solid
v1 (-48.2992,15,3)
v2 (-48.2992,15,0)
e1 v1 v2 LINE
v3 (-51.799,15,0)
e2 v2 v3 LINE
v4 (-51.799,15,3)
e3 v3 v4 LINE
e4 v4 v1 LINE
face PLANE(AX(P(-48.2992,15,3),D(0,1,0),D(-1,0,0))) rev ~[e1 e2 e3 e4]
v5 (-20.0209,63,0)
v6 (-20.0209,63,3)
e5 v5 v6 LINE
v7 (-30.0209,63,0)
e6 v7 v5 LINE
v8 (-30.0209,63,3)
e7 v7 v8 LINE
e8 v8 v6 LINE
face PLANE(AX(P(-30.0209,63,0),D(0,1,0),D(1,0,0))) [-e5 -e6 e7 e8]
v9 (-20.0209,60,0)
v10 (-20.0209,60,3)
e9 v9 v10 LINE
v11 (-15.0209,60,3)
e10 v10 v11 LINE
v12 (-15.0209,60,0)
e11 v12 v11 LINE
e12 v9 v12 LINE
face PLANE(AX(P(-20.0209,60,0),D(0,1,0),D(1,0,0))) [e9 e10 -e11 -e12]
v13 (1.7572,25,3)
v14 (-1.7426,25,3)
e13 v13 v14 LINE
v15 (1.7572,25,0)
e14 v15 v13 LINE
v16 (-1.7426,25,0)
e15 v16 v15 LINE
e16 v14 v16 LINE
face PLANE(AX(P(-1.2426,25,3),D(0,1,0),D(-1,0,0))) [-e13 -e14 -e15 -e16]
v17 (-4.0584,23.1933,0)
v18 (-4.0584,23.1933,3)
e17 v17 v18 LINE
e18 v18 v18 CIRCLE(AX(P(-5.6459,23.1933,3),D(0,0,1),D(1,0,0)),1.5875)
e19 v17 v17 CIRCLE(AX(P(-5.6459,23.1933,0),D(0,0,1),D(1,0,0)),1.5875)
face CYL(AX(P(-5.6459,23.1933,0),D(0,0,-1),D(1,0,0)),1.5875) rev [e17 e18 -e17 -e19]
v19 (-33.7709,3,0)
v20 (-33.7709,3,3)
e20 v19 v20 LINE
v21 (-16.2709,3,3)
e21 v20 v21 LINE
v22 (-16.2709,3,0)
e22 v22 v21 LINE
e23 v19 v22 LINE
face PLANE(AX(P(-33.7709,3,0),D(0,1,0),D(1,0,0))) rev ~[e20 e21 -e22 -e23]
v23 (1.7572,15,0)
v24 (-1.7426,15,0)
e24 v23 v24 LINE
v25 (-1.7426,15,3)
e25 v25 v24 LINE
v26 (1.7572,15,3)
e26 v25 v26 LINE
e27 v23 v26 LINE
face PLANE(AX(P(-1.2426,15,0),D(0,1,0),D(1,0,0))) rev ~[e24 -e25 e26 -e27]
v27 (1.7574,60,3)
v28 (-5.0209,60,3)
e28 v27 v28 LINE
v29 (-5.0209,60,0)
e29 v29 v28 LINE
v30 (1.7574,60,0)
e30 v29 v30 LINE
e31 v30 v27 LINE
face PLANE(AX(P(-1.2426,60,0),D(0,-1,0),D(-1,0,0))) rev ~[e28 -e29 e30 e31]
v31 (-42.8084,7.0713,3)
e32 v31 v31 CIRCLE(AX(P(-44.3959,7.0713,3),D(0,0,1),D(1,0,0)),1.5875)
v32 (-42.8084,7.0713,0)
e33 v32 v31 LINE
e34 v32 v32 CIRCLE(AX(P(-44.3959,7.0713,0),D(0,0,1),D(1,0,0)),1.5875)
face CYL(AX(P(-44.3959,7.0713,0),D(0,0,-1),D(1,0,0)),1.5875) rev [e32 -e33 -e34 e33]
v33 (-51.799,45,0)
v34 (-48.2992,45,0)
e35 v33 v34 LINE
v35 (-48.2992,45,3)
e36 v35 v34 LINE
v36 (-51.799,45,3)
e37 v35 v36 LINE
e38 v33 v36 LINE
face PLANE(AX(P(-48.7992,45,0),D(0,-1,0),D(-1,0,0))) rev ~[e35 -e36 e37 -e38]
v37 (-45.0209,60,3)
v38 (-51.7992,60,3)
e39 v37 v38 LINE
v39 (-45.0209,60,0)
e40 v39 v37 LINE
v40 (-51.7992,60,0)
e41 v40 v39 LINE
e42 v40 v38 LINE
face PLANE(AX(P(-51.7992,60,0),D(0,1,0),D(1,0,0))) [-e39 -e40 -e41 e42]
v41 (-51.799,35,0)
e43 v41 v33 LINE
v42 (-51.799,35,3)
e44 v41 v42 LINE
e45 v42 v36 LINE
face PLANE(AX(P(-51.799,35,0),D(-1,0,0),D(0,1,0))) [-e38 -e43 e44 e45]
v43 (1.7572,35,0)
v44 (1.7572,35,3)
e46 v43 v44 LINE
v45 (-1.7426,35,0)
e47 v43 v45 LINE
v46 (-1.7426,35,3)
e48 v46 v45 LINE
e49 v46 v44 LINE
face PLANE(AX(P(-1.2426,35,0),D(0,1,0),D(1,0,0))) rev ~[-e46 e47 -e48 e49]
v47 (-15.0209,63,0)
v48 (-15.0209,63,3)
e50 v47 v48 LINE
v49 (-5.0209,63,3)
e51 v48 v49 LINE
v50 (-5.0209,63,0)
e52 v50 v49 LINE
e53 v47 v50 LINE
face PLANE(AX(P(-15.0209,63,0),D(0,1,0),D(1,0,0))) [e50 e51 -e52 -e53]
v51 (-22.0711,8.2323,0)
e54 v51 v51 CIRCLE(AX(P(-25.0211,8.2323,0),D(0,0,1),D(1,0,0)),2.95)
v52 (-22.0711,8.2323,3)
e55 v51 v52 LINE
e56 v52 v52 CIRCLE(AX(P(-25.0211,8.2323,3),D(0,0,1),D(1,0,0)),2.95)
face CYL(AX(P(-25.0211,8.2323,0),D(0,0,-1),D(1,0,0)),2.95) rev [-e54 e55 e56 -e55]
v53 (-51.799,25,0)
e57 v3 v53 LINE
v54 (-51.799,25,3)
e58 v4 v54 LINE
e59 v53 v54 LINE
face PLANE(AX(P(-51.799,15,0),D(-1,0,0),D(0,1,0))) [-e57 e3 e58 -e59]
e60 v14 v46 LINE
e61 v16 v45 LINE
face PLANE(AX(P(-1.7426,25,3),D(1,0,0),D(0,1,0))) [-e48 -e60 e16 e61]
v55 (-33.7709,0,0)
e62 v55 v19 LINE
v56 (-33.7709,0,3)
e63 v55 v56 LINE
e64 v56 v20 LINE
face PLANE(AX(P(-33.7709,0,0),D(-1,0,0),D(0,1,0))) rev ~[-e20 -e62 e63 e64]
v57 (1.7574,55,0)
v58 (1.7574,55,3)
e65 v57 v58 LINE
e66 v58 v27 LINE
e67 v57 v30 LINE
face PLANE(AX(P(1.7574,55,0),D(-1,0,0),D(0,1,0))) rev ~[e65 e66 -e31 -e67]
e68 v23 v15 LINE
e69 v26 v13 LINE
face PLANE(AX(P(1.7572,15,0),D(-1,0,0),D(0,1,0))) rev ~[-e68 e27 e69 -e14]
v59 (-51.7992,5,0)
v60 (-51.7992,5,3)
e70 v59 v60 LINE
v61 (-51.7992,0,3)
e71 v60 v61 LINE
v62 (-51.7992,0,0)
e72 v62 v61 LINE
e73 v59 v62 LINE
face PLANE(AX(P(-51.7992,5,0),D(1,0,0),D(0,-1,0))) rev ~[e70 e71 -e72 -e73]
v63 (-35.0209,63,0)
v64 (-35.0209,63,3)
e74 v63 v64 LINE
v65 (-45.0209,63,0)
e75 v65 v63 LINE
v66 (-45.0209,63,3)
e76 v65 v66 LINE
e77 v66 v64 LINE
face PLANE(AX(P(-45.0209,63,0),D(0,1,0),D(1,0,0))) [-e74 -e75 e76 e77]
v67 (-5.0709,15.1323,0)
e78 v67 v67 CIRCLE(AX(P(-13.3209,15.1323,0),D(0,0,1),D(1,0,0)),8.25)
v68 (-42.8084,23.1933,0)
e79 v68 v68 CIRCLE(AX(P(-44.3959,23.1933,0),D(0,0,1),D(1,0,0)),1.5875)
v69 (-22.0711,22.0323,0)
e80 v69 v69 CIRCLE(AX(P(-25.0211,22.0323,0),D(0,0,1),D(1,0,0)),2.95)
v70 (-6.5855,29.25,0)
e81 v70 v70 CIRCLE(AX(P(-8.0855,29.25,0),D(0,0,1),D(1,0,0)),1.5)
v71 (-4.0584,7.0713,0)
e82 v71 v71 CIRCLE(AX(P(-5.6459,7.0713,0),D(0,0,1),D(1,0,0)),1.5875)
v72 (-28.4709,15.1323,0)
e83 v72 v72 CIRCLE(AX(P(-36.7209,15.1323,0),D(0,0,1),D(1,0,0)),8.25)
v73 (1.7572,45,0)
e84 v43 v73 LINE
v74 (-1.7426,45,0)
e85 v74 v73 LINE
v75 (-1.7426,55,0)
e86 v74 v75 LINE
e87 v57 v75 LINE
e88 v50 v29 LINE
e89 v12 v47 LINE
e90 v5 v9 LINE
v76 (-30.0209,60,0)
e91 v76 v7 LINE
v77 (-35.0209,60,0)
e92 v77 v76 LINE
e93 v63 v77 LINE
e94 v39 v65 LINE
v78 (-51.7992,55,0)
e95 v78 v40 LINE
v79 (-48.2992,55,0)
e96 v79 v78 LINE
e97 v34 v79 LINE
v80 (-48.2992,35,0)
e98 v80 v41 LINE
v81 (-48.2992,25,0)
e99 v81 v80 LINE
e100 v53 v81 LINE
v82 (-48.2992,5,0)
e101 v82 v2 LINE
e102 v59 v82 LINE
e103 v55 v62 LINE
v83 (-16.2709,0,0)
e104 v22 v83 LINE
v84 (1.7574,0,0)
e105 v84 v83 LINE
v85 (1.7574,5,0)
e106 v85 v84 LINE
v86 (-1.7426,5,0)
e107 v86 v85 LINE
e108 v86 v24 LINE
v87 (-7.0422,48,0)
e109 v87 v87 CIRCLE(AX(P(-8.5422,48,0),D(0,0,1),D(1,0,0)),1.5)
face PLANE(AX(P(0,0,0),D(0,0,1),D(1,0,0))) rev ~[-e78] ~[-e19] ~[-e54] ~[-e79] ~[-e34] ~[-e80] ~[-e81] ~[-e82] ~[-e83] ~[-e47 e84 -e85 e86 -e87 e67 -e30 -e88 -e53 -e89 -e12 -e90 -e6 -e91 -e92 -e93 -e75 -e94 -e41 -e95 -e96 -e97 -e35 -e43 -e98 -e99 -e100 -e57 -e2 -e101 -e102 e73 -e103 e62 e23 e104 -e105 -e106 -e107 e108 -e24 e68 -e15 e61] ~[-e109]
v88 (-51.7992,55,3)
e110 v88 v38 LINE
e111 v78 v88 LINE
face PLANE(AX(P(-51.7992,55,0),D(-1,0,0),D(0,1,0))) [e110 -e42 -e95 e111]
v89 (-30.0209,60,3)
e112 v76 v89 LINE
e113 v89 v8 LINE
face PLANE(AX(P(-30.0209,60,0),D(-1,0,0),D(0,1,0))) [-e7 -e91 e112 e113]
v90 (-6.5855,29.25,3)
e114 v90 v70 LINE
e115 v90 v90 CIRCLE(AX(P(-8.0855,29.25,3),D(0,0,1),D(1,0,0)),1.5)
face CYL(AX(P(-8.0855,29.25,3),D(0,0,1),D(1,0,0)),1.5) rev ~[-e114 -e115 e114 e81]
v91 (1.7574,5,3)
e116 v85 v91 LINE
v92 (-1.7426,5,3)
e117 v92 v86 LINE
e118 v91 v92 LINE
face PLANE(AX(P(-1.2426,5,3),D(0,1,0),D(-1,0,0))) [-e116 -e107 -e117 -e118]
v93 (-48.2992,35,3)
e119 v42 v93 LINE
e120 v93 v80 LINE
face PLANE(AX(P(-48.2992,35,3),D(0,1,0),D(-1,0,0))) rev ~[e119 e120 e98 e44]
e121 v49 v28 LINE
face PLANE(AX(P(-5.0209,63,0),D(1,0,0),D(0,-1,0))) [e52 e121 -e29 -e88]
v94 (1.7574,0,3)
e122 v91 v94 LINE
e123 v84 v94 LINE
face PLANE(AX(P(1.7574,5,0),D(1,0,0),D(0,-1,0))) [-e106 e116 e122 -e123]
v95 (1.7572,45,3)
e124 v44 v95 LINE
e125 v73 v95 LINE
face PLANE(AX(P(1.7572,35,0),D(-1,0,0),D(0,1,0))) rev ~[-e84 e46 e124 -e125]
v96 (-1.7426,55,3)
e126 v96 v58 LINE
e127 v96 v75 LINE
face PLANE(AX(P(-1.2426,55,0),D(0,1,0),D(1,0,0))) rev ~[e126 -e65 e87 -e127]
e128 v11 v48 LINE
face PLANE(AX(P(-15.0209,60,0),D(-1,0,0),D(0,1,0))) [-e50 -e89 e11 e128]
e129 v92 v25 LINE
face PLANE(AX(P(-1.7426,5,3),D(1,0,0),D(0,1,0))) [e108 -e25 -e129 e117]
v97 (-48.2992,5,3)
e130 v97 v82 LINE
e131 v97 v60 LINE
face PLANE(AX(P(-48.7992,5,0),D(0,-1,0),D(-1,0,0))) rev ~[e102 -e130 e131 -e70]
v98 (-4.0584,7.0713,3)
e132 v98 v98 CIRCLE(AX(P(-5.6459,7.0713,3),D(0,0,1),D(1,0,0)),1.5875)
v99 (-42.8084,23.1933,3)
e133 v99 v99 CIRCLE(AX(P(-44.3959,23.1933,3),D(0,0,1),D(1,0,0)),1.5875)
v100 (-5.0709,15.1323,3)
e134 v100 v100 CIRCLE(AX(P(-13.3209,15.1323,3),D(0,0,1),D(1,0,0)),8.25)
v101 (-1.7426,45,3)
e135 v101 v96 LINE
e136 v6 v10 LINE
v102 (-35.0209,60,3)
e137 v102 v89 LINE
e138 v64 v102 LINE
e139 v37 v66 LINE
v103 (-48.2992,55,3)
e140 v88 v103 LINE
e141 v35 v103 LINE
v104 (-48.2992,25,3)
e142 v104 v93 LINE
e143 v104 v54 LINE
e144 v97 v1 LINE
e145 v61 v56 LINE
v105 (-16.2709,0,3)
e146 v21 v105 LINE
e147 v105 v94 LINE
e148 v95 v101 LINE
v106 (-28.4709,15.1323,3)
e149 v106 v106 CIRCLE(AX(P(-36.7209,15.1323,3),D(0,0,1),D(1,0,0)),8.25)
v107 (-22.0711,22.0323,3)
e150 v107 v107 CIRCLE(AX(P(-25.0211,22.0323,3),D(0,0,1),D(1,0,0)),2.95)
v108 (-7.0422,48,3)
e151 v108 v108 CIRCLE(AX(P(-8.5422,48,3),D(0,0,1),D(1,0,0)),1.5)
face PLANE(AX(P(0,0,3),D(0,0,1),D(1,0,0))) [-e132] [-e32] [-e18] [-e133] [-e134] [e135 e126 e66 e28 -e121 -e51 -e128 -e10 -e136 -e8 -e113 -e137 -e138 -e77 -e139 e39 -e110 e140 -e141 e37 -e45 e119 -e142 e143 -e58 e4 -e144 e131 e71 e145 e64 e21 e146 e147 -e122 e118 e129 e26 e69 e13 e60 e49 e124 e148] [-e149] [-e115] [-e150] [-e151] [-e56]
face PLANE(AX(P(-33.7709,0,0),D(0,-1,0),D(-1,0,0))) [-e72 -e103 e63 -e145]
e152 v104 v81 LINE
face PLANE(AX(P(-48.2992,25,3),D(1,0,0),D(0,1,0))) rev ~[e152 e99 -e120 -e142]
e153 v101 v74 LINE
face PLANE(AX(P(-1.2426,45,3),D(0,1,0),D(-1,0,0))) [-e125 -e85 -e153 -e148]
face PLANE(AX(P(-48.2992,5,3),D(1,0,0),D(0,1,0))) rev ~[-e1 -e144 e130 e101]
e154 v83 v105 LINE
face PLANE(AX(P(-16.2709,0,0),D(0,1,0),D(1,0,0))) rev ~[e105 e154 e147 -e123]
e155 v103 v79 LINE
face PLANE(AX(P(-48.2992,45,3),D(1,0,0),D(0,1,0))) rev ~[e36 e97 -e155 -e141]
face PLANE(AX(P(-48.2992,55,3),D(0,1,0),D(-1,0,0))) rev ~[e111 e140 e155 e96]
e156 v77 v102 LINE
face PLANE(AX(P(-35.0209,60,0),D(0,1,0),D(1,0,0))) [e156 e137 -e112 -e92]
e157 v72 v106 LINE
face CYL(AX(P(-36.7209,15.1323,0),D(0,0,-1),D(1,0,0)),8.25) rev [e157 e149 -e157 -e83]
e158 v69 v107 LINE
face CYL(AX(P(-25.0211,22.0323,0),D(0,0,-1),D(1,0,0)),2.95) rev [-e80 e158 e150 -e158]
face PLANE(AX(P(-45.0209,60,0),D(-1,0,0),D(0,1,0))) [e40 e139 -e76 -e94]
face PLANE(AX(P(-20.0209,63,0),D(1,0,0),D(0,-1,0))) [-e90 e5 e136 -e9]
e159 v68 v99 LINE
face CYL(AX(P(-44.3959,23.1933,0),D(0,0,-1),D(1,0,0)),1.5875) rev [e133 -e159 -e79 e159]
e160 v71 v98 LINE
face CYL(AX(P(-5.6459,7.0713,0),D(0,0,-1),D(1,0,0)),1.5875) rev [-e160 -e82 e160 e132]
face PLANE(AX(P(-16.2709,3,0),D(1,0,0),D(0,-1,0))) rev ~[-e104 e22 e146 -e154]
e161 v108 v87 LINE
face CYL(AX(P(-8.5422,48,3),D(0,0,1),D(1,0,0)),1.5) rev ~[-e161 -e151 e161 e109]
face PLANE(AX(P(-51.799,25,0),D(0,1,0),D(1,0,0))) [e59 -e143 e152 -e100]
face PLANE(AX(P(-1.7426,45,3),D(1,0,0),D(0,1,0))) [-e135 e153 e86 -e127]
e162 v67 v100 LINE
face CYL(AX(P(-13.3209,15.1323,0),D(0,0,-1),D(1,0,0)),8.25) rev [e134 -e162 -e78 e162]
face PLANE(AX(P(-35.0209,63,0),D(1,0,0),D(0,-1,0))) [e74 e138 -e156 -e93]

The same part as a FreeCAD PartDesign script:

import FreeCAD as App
import Part
import Sketcher

V = App.Vector
Q = App.Units.Quantity

doc = App.newDocument("Part")
body = doc.addObject("PartDesign::Body", "Body")

# Sketch on XY plane
sketch1 = body.newObject("Sketcher::SketchObject", "Sketch")
sketch1.AttachmentSupport = (doc.getObject("XY_Plane"), [""])
sketch1.MapMode = "FlatFace"
sketch1.addGeometry([
    Part.LineSegment(V(-33.8, 3, 0), V(-16.3, 3, 0)),  # 0
    Part.LineSegment(V(-16.3, 3, 0), V(-16.3, 0, 0)),  # 1
    Part.LineSegment(V(-16.3, 0, 0), V(1.8, 0, 0)),  # 2
    Part.LineSegment(V(1.8, 0, 0), V(1.8, 5, 0)),  # 3
    Part.LineSegment(V(1.8, 5, 0), V(-1.2, 5, 0)),  # 4
    Part.LineSegment(V(-1.2, 5, 0), V(-1.2, 15, 0)),  # 5
    Part.LineSegment(V(-1.2, 15, 0), V(1.8, 15, 0)),  # 6
    Part.LineSegment(V(1.8, 15, 0), V(1.8, 25, 0)),  # 7
    Part.LineSegment(V(1.8, 25, 0), V(-1.2, 25, 0)),  # 8
    Part.LineSegment(V(-1.2, 25, 0), V(-1.2, 35, 0)),  # 9
    Part.LineSegment(V(-1.2, 35, 0), V(1.8, 35, 0)),  # 10
    Part.LineSegment(V(1.8, 35, 0), V(1.8, 45, 0)),  # 11
    Part.LineSegment(V(1.8, 45, 0), V(-1.2, 45, 0)),  # 12
    Part.LineSegment(V(-1.2, 45, 0), V(-1.2, 55, 0)),  # 13
    Part.LineSegment(V(-1.2, 55, 0), V(1.8, 55, 0)),  # 14
    Part.LineSegment(V(1.8, 55, 0), V(1.8, 60, 0)),  # 15
    Part.LineSegment(V(1.8, 60, 0), V(-5, 60, 0)),  # 16
    Part.LineSegment(V(-5, 60, 0), V(-5, 63, 0)),  # 17
    Part.LineSegment(V(-5, 63, 0), V(-15, 63, 0)),  # 18
    Part.LineSegment(V(-15, 63, 0), V(-15, 60, 0)),  # 19
    Part.LineSegment(V(-15, 60, 0), V(-20, 60, 0)),  # 20
    Part.LineSegment(V(-20, 60, 0), V(-20, 63, 0)),  # 21
    Part.LineSegment(V(-20, 63, 0), V(-30, 63, 0)),  # 22
    Part.LineSegment(V(-30, 63, 0), V(-30, 60, 0)),  # 23
    Part.LineSegment(V(-30, 60, 0), V(-35, 60, 0)),  # 24
    Part.LineSegment(V(-35, 60, 0), V(-35, 63, 0)),  # 25
    Part.LineSegment(V(-35, 63, 0), V(-45, 63, 0)),  # 26
    Part.LineSegment(V(-45, 63, 0), V(-45, 60, 0)),  # 27
    Part.LineSegment(V(-45, 60, 0), V(-51.8, 60, 0)),  # 28
    Part.LineSegment(V(-51.8, 60, 0), V(-51.8, 55, 0)),  # 29
    Part.LineSegment(V(-51.8, 55, 0), V(-48.8, 55, 0)),  # 30
    Part.LineSegment(V(-48.8, 55, 0), V(-48.8, 45, 0)),  # 31
    Part.LineSegment(V(-48.8, 45, 0), V(-51.8, 45, 0)),  # 32
    Part.LineSegment(V(-51.8, 45, 0), V(-51.8, 35, 0)),  # 33
    Part.LineSegment(V(-51.8, 35, 0), V(-48.8, 35, 0)),  # 34
    Part.LineSegment(V(-48.8, 35, 0), V(-48.8, 25, 0)),  # 35
    Part.LineSegment(V(-48.8, 25, 0), V(-51.8, 25, 0)),  # 36
    Part.LineSegment(V(-51.8, 25, 0), V(-51.8, 15, 0)),  # 37
    Part.LineSegment(V(-51.8, 15, 0), V(-48.8, 15, 0)),  # 38
    Part.LineSegment(V(-48.8, 15, 0), V(-48.8, 5, 0)),  # 39
    Part.LineSegment(V(-48.8, 5, 0), V(-51.8, 5, 0)),  # 40
    Part.LineSegment(V(-51.8, 5, 0), V(-51.8, 0, 0)),  # 41
    Part.LineSegment(V(-51.8, 0, 0), V(-33.8, 0, 0)),  # 42
    Part.LineSegment(V(-33.8, 0, 0), V(-33.8, 3, 0)),  # 43
    Part.Circle(V(-44.4, 7.1, 0), V(0, 0, 1), 1.6),  # 44
    Part.Circle(V(-36.7, 15.1, 0), V(0, 0, 1), 8.2),  # 45
    Part.Circle(V(-25, 8.2, 0), V(0, 0, 1), 3),  # 46
    Part.Circle(V(-44.4, 23.2, 0), V(0, 0, 1), 1.6),  # 47
    Part.Circle(V(-42, 29.2, 0), V(0, 0, 1), 1.5),  # 48
    Part.Circle(V(-25, 22, 0), V(0, 0, 1), 3),  # 49
    Part.Circle(V(-13.3, 15.1, 0), V(0, 0, 1), 8.2),  # 50
    Part.Circle(V(-5.6, 7.1, 0), V(0, 0, 1), 1.6),  # 51
    Part.Circle(V(-5.6, 23.2, 0), V(0, 0, 1), 1.6),  # 52
    Part.Circle(V(-41.5, 48, 0), V(0, 0, 1), 1.5),  # 53
], False)
sketch1.addConstraint([
    Sketcher.Constraint("Coincident", 0, 2, 1, 1),
    Sketcher.Constraint("Coincident", 1, 2, 2, 1),
    Sketcher.Constraint("Coincident", 2, 2, 3, 1),
    Sketcher.Constraint("Coincident", 3, 2, 4, 1),
    Sketcher.Constraint("Coincident", 4, 2, 5, 1),
    Sketcher.Constraint("Coincident", 5, 2, 6, 1),
    Sketcher.Constraint("Coincident", 6, 2, 7, 1),
    Sketcher.Constraint("Coincident", 7, 2, 8, 1),
    Sketcher.Constraint("Coincident", 8, 2, 9, 1),
    Sketcher.Constraint("Coincident", 9, 2, 10, 1),
    Sketcher.Constraint("Coincident", 10, 2, 11, 1),
    Sketcher.Constraint("Coincident", 11, 2, 12, 1),
    Sketcher.Constraint("Coincident", 12, 2, 13, 1),
    Sketcher.Constraint("Coincident", 13, 2, 14, 1),
    Sketcher.Constraint("Coincident", 14, 2, 15, 1),
    Sketcher.Constraint("Coincident", 15, 2, 16, 1),
    Sketcher.Constraint("Coincident", 16, 2, 17, 1),
    Sketcher.Constraint("Coincident", 17, 2, 18, 1),
    Sketcher.Constraint("Coincident", 18, 2, 19, 1),
    Sketcher.Constraint("Coincident", 19, 2, 20, 1),
    Sketcher.Constraint("Coincident", 20, 2, 21, 1),
    Sketcher.Constraint("Coincident", 21, 2, 22, 1),
    Sketcher.Constraint("Coincident", 22, 2, 23, 1),
    Sketcher.Constraint("Coincident", 23, 2, 24, 1),
    Sketcher.Constraint("Coincident", 24, 2, 25, 1),
    Sketcher.Constraint("Coincident", 25, 2, 26, 1),
    Sketcher.Constraint("Coincident", 26, 2, 27, 1),
    Sketcher.Constraint("Coincident", 27, 2, 28, 1),
    Sketcher.Constraint("Coincident", 28, 2, 29, 1),
    Sketcher.Constraint("Coincident", 29, 2, 30, 1),
    Sketcher.Constraint("Coincident", 30, 2, 31, 1),
    Sketcher.Constraint("Coincident", 31, 2, 32, 1),
    Sketcher.Constraint("Coincident", 32, 2, 33, 1),
    Sketcher.Constraint("Coincident", 33, 2, 34, 1),
    Sketcher.Constraint("Coincident", 34, 2, 35, 1),
    Sketcher.Constraint("Coincident", 35, 2, 36, 1),
    Sketcher.Constraint("Coincident", 36, 2, 37, 1),
    Sketcher.Constraint("Coincident", 37, 2, 38, 1),
    Sketcher.Constraint("Coincident", 38, 2, 39, 1),
    Sketcher.Constraint("Coincident", 39, 2, 40, 1),
    Sketcher.Constraint("Coincident", 40, 2, 41, 1),
    Sketcher.Constraint("Coincident", 41, 2, 42, 1),
    Sketcher.Constraint("Coincident", 42, 2, 43, 1),
    Sketcher.Constraint("Coincident", 43, 2, 0, 1),
    Sketcher.Constraint("Horizontal", 0),
    Sketcher.Constraint("Vertical", 1),
    Sketcher.Constraint("Horizontal", 2),
    Sketcher.Constraint("Vertical", 3),
    Sketcher.Constraint("Horizontal", 4),
    Sketcher.Constraint("Vertical", 5),
    Sketcher.Constraint("Horizontal", 6),
    Sketcher.Constraint("Vertical", 7),
    Sketcher.Constraint("Horizontal", 8),
    Sketcher.Constraint("Vertical", 9),
    Sketcher.Constraint("Horizontal", 10),
    Sketcher.Constraint("Vertical", 11),
    Sketcher.Constraint("Horizontal", 12),
    Sketcher.Constraint("Vertical", 13),
    Sketcher.Constraint("Horizontal", 14),
    Sketcher.Constraint("Vertical", 15),
    Sketcher.Constraint("Horizontal", 16),
    Sketcher.Constraint("Vertical", 17),
    Sketcher.Constraint("Horizontal", 18),
    Sketcher.Constraint("Vertical", 19),
    Sketcher.Constraint("Horizontal", 20),
    Sketcher.Constraint("Vertical", 21),
    Sketcher.Constraint("Horizontal", 22),
    Sketcher.Constraint("Vertical", 23),
    Sketcher.Constraint("Horizontal", 24),
    Sketcher.Constraint("Vertical", 25),
    Sketcher.Constraint("Horizontal", 26),
    Sketcher.Constraint("Vertical", 27),
    Sketcher.Constraint("Horizontal", 28),
    Sketcher.Constraint("Vertical", 29),
    Sketcher.Constraint("Horizontal", 30),
    Sketcher.Constraint("Vertical", 31),
    Sketcher.Constraint("Horizontal", 32),
    Sketcher.Constraint("Vertical", 33),
    Sketcher.Constraint("Horizontal", 34),
    Sketcher.Constraint("Vertical", 35),
    Sketcher.Constraint("Horizontal", 36),
    Sketcher.Constraint("Vertical", 37),
    Sketcher.Constraint("Horizontal", 38),
    Sketcher.Constraint("Vertical", 39),
    Sketcher.Constraint("Horizontal", 40),
    Sketcher.Constraint("Vertical", 41),
    Sketcher.Constraint("Horizontal", 42),
    Sketcher.Constraint("Vertical", 43),
    Sketcher.Constraint("Equal", 44, 47),
    Sketcher.Constraint("Equal", 46, 49),
    Sketcher.Constraint("Equal", 45, 50),
    Sketcher.Constraint("Equal", 47, 51),
    Sketcher.Constraint("Equal", 51, 52),
    Sketcher.Constraint("Equal", 48, 53),
    Sketcher.Constraint("PointOnObject", 1, 2, -1),
    Sketcher.Constraint("PointOnObject", 41, 2, -1),
    Sketcher.Constraint("Horizontal", 45, 3, 50, 3),
    Sketcher.Constraint("Horizontal", 44, 3, 51, 3),
    Sketcher.Constraint("Horizontal", 47, 3, 52, 3),
    Sketcher.Constraint("Horizontal", 16, 2, 19, 2),
    Sketcher.Constraint("Horizontal", 18, 2, 21, 2),
    Sketcher.Constraint("Horizontal", 20, 2, 23, 2),
    Sketcher.Constraint("Horizontal", 22, 2, 25, 2),
    Sketcher.Constraint("Horizontal", 24, 2, 27, 2),
    Sketcher.Constraint("Horizontal", 14, 2, 29, 2),
    Sketcher.Constraint("Horizontal", 12, 2, 31, 2),
    Sketcher.Constraint("Horizontal", 10, 2, 33, 2),
    Sketcher.Constraint("Horizontal", 8, 2, 35, 2),
    Sketcher.Constraint("Horizontal", 6, 2, 37, 2),
    Sketcher.Constraint("Horizontal", 4, 2, 39, 2),
    Sketcher.Constraint("Vertical", 44, 3, 47, 3),
    Sketcher.Constraint("Vertical", 46, 3, 49, 3),
    Sketcher.Constraint("Vertical", 51, 3, 52, 3),
    Sketcher.Constraint("Vertical", 3, 2, 6, 2),
    Sketcher.Constraint("Vertical", 5, 2, 8, 2),
    Sketcher.Constraint("Vertical", 7, 2, 10, 2),
    Sketcher.Constraint("Vertical", 9, 2, 12, 2),
    Sketcher.Constraint("Vertical", 11, 2, 14, 2),
    Sketcher.Constraint("Vertical", 29, 2, 32, 2),
    Sketcher.Constraint("Vertical", 31, 2, 34, 2),
    Sketcher.Constraint("Vertical", 33, 2, 36, 2),
    Sketcher.Constraint("Vertical", 35, 2, 38, 2),
    Sketcher.Constraint("Vertical", 37, 2, 40, 2),
    Sketcher.Constraint("Equal", 18, 22),
    Sketcher.Constraint("Equal", 20, 24),
    Sketcher.Constraint("Equal", 22, 26),
    Sketcher.Constraint("Equal", 16, 28),
    Sketcher.Constraint("Equal", 14, 30),
    Sketcher.Constraint("Equal", 2, 42),
    Sketcher.Constraint("Equal", 40, 1),
    Sketcher.Constraint("Equal", 24, 3),
    Sketcher.Constraint("Equal", 26, 5),
    Sketcher.Constraint("Equal", 5, 7),
    Sketcher.Constraint("Equal", 7, 9),
    Sketcher.Constraint("Equal", 9, 11),
    Sketcher.Constraint("Equal", 11, 13),
    Sketcher.Constraint("Equal", 3, 15),
    Sketcher.Constraint("Equal", 1, 17),
    Sketcher.Constraint("Diameter", 48, Q("3 mm")),
    Sketcher.Constraint("DistanceX", 4, 2, 4, 1, Q("3 mm")),
    Sketcher.Constraint("DistanceX", 18, 2, 18, 1, Q("10 mm")),
    Sketcher.Constraint("DistanceY", -1, 1, 5, 2, Q("15 mm")),
    Sketcher.Constraint("DistanceY", 53, 3, 22, 2, Q("15 mm")),
    Sketcher.Constraint("Diameter", 45, Q("16.5 mm")),
    Sketcher.Constraint("Diameter", 46, Q("5.9 mm")),
    Sketcher.Constraint("Diameter", 44, Q("3.175 mm")),
    Sketcher.Constraint("DistanceX", 0, 1, 0, 2, Q("17.5 mm")),
    Sketcher.Constraint("DistanceX", 44, 3, 45, 3, Q("7.675 mm")),
    Sketcher.Constraint("DistanceY", 44, 3, 45, 3, Q("8.061 mm")),
    Sketcher.Constraint("DistanceY", 45, 3, 47, 3, Q("8.061 mm")),
    Sketcher.Constraint("DistanceX", 50, 3, 51, 3, Q("7.675 mm")),
    Sketcher.Constraint("DistanceX", 53, 3, -1, 1, Q("41.5 mm")),
    Sketcher.Constraint("DistanceX", 45, 3, 46, 3, Q("11.6998 mm")),
    Sketcher.Constraint("DistanceY", 46, 3, 45, 3, Q("6.9 mm")),
    Sketcher.Constraint("DistanceY", 45, 3, 49, 3, Q("6.9 mm")),
    Sketcher.Constraint("DistanceX", 46, 3, 50, 3, Q("11.7002 mm")),
    Sketcher.Constraint("DistanceY", -1, 1, 48, 3, Q("29.25 mm")),
    Sketcher.Constraint("DistanceX", 0, 2, 50, 3, Q("2.95 mm")),
    Sketcher.Constraint("DistanceX", 2, 1, 2, 2, Q("18.0283 mm")),
    Sketcher.Constraint("DistanceX", 44, 3, -1, 1, Q("44.396 mm")),
    Sketcher.Constraint("DistanceY", -1, 1, 44, 3, Q("7.0713 mm")),
    Sketcher.Constraint("DistanceX", 48, 3, -1, 1, Q("41.9566 mm")),
])
pad1 = body.newObject("PartDesign::Pad", "Pad")
pad1.Profile = sketch1
pad1.Length = 3

# Sketch on XY plane
sketch2 = body.newObject("Sketcher::SketchObject", "Sketch001")
sketch2.AttachmentSupport = (doc.getObject("XY_Plane"), [""])
sketch2.MapMode = "FlatFace"
sketch2.AttachmentOffset = App.Placement(V(0, 0, 3), App.Rotation())
sketch2.addGeometry([
    Part.LineSegment(V(-1.7, 5, 0), V(-1.2, 5, 0)),  # 0
    Part.LineSegment(V(-1.2, 5, 0), V(-1.2, 15, 0)),  # 1
    Part.LineSegment(V(-1.2, 15, 0), V(-1.7, 15, 0)),  # 2
    Part.LineSegment(V(-1.7, 15, 0), V(-1.7, 5, 0)),  # 3
    Part.LineSegment(V(-1.7, 25, 0), V(-1.2, 25, 0)),  # 4
    Part.LineSegment(V(-1.2, 25, 0), V(-1.2, 35, 0)),  # 5
    Part.LineSegment(V(-1.2, 35, 0), V(-1.7, 35, 0)),  # 6
    Part.LineSegment(V(-1.7, 35, 0), V(-1.7, 25, 0)),  # 7
    Part.LineSegment(V(-1.7, 45, 0), V(-1.2, 45, 0)),  # 8
    Part.LineSegment(V(-1.2, 45, 0), V(-1.2, 55, 0)),  # 9
    Part.LineSegment(V(-1.2, 55, 0), V(-1.7, 55, 0)),  # 10
    Part.LineSegment(V(-1.7, 55, 0), V(-1.7, 45, 0)),  # 11
    Part.LineSegment(V(-48.3, 55, 0), V(-48.8, 55, 0)),  # 12
    Part.LineSegment(V(-48.8, 55, 0), V(-48.8, 45, 0)),  # 13
    Part.LineSegment(V(-48.8, 45, 0), V(-48.3, 45, 0)),  # 14
    Part.LineSegment(V(-48.3, 45, 0), V(-48.3, 55, 0)),  # 15
    Part.LineSegment(V(-48.3, 35, 0), V(-48.8, 35, 0)),  # 16
    Part.LineSegment(V(-48.8, 35, 0), V(-48.8, 25, 0)),  # 17
    Part.LineSegment(V(-48.8, 25, 0), V(-48.3, 25, 0)),  # 18
    Part.LineSegment(V(-48.3, 25, 0), V(-48.3, 35, 0)),  # 19
    Part.LineSegment(V(-48.3, 15, 0), V(-48.8, 15, 0)),  # 20
    Part.LineSegment(V(-48.8, 15, 0), V(-48.8, 5, 0)),  # 21
    Part.LineSegment(V(-48.8, 5, 0), V(-48.3, 5, 0)),  # 22
    Part.LineSegment(V(-48.3, 5, 0), V(-48.3, 15, 0)),  # 23
], False)
sketch2.addConstraint([
    Sketcher.Constraint("Coincident", 0, 2, 1, 1),
    Sketcher.Constraint("Coincident", 1, 2, 2, 1),
    Sketcher.Constraint("Coincident", 2, 2, 3, 1),
    Sketcher.Constraint("Coincident", 3, 2, 0, 1),
    Sketcher.Constraint("Coincident", 4, 2, 5, 1),
    Sketcher.Constraint("Coincident", 5, 2, 6, 1),
    Sketcher.Constraint("Coincident", 6, 2, 7, 1),
    Sketcher.Constraint("Coincident", 7, 2, 4, 1),
    Sketcher.Constraint("Coincident", 8, 2, 9, 1),
    Sketcher.Constraint("Coincident", 9, 2, 10, 1),
    Sketcher.Constraint("Coincident", 10, 2, 11, 1),
    Sketcher.Constraint("Coincident", 11, 2, 8, 1),
    Sketcher.Constraint("Coincident", 12, 2, 13, 1),
    Sketcher.Constraint("Coincident", 13, 2, 14, 1),
    Sketcher.Constraint("Coincident", 14, 2, 15, 1),
    Sketcher.Constraint("Coincident", 15, 2, 12, 1),
    Sketcher.Constraint("Coincident", 16, 2, 17, 1),
    Sketcher.Constraint("Coincident", 17, 2, 18, 1),
    Sketcher.Constraint("Coincident", 18, 2, 19, 1),
    Sketcher.Constraint("Coincident", 19, 2, 16, 1),
    Sketcher.Constraint("Coincident", 20, 2, 21, 1),
    Sketcher.Constraint("Coincident", 21, 2, 22, 1),
    Sketcher.Constraint("Coincident", 22, 2, 23, 1),
    Sketcher.Constraint("Coincident", 23, 2, 20, 1),
    Sketcher.Constraint("Horizontal", 0),
    Sketcher.Constraint("Vertical", 1),
    Sketcher.Constraint("Horizontal", 2),
    Sketcher.Constraint("Vertical", 3),
    Sketcher.Constraint("Horizontal", 4),
    Sketcher.Constraint("Vertical", 5),
    Sketcher.Constraint("Horizontal", 6),
    Sketcher.Constraint("Vertical", 7),
    Sketcher.Constraint("Horizontal", 8),
    Sketcher.Constraint("Vertical", 9),
    Sketcher.Constraint("Horizontal", 10),
    Sketcher.Constraint("Vertical", 11),
    Sketcher.Constraint("Horizontal", 12),
    Sketcher.Constraint("Vertical", 13),
    Sketcher.Constraint("Horizontal", 14),
    Sketcher.Constraint("Vertical", 15),
    Sketcher.Constraint("Horizontal", 16),
    Sketcher.Constraint("Vertical", 17),
    Sketcher.Constraint("Horizontal", 18),
    Sketcher.Constraint("Vertical", 19),
    Sketcher.Constraint("Horizontal", 20),
    Sketcher.Constraint("Vertical", 21),
    Sketcher.Constraint("Horizontal", 22),
    Sketcher.Constraint("Vertical", 23),
    Sketcher.Constraint("Horizontal", 10, 2, 12, 2),
    Sketcher.Constraint("Horizontal", 11, 2, 13, 2),
    Sketcher.Constraint("Horizontal", 6, 2, 16, 2),
    Sketcher.Constraint("Horizontal", 7, 2, 17, 2),
    Sketcher.Constraint("Horizontal", 2, 2, 20, 2),
    Sketcher.Constraint("Horizontal", 3, 2, 21, 2),
    Sketcher.Constraint("Vertical", 1, 2, 4, 2),
    Sketcher.Constraint("Vertical", 3, 2, 6, 2),
    Sketcher.Constraint("Vertical", 5, 2, 8, 2),
    Sketcher.Constraint("Vertical", 7, 2, 10, 2),
    Sketcher.Constraint("Vertical", 13, 2, 16, 2),
    Sketcher.Constraint("Vertical", 15, 2, 18, 2),
    Sketcher.Constraint("Vertical", 17, 2, 20, 2),
    Sketcher.Constraint("Vertical", 19, 2, 22, 2),
    Sketcher.Constraint("Equal", 10, 12),
    Sketcher.Constraint("Equal", 3, 5),
    Sketcher.Constraint("Equal", 7, 9),
    Sketcher.Constraint("DistanceX", 0, 1, 0, 2, Q("0.5 mm")),
    Sketcher.Constraint("DistanceY", 1, 1, 1, 2, Q("10 mm")),
    Sketcher.Constraint("DistanceY", -1, 1, 0, 2, Q("5 mm")),
    Sketcher.Constraint("DistanceY", -1, 1, 4, 2, Q("25 mm")),
    Sketcher.Constraint("DistanceY", -1, 1, 8, 2, Q("45 mm")),
    Sketcher.Constraint("DistanceX", 0, 2, -1, 1, Q("1.2426 mm")),
    Sketcher.Constraint("DistanceX", 12, 2, -1, 1, Q("48.7992 mm")),
])
pocket1 = body.newObject("PartDesign::Pocket", "Pocket")
pocket1.Profile = sketch2
pocket1.Type = "ThroughAll"

# Sketch on XY plane
sketch3 = body.newObject("Sketcher::SketchObject", "Sketch002")
sketch3.AttachmentSupport = (doc.getObject("XY_Plane"), [""])
sketch3.MapMode = "FlatFace"
sketch3.AttachmentOffset = App.Placement(V(0, 0, 3), App.Rotation())
sketch3.addGeometry([
    Part.Circle(V(-8.1, 29.2, 0), V(0, 0, 1), 1.5),
    Part.Circle(V(-8.5, 48, 0), V(0, 0, 1), 1.5),
], False)
sketch3.addConstraint([
    Sketcher.Constraint("Equal", 0, 1),
    Sketcher.Constraint("Diameter", 0, Q("3 mm")),
    Sketcher.Constraint("DistanceY", -1, 1, 1, 3, Q("48 mm")),
    Sketcher.Constraint("DistanceY", -1, 1, 0, 3, Q("29.25 mm")),
    Sketcher.Constraint("DistanceX", 0, 3, -1, 1, Q("8.0855 mm")),
    Sketcher.Constraint("DistanceX", 1, 3, -1, 1, Q("8.5422 mm")),
])
pocket2 = body.newObject("PartDesign::Pocket", "Pocket001")
pocket2.Profile = sketch3
pocket2.Type = "UpToFirst"

# Sketch on XY plane
sketch4 = body.newObject("Sketcher::SketchObject", "Sketch003")
sketch4.AttachmentSupport = (doc.getObject("XY_Plane"), [""])
sketch4.MapMode = "FlatFace"
sketch4.AttachmentOffset = App.Placement(V(0, 0, 3), App.Rotation())
sketch4.addGeometry([
    Part.Circle(V(-42, 29.2, 0), V(0, 0, 1), 1.5),
    Part.Circle(V(-41.5, 48, 0), V(0, 0, 1), 1.5),
], False)
sketch4.addConstraint([
    Sketcher.Constraint("Equal", 0, 1),
    Sketcher.Constraint("Diameter", 0, Q("3 mm")),
    Sketcher.Constraint("DistanceY", -1, 1, 1, 3, Q("48 mm")),
    Sketcher.Constraint("DistanceX", 1, 3, -1, 1, Q("41.5 mm")),
    Sketcher.Constraint("DistanceY", -1, 1, 0, 3, Q("29.25 mm")),
    Sketcher.Constraint("DistanceX", 0, 3, -1, 1, Q("41.9566 mm")),
])
pad2 = body.newObject("PartDesign::Pad", "Pad001")
pad2.Profile = sketch4
pad2.Length = 3
pad2.Reversed = True

doc.recompute()
